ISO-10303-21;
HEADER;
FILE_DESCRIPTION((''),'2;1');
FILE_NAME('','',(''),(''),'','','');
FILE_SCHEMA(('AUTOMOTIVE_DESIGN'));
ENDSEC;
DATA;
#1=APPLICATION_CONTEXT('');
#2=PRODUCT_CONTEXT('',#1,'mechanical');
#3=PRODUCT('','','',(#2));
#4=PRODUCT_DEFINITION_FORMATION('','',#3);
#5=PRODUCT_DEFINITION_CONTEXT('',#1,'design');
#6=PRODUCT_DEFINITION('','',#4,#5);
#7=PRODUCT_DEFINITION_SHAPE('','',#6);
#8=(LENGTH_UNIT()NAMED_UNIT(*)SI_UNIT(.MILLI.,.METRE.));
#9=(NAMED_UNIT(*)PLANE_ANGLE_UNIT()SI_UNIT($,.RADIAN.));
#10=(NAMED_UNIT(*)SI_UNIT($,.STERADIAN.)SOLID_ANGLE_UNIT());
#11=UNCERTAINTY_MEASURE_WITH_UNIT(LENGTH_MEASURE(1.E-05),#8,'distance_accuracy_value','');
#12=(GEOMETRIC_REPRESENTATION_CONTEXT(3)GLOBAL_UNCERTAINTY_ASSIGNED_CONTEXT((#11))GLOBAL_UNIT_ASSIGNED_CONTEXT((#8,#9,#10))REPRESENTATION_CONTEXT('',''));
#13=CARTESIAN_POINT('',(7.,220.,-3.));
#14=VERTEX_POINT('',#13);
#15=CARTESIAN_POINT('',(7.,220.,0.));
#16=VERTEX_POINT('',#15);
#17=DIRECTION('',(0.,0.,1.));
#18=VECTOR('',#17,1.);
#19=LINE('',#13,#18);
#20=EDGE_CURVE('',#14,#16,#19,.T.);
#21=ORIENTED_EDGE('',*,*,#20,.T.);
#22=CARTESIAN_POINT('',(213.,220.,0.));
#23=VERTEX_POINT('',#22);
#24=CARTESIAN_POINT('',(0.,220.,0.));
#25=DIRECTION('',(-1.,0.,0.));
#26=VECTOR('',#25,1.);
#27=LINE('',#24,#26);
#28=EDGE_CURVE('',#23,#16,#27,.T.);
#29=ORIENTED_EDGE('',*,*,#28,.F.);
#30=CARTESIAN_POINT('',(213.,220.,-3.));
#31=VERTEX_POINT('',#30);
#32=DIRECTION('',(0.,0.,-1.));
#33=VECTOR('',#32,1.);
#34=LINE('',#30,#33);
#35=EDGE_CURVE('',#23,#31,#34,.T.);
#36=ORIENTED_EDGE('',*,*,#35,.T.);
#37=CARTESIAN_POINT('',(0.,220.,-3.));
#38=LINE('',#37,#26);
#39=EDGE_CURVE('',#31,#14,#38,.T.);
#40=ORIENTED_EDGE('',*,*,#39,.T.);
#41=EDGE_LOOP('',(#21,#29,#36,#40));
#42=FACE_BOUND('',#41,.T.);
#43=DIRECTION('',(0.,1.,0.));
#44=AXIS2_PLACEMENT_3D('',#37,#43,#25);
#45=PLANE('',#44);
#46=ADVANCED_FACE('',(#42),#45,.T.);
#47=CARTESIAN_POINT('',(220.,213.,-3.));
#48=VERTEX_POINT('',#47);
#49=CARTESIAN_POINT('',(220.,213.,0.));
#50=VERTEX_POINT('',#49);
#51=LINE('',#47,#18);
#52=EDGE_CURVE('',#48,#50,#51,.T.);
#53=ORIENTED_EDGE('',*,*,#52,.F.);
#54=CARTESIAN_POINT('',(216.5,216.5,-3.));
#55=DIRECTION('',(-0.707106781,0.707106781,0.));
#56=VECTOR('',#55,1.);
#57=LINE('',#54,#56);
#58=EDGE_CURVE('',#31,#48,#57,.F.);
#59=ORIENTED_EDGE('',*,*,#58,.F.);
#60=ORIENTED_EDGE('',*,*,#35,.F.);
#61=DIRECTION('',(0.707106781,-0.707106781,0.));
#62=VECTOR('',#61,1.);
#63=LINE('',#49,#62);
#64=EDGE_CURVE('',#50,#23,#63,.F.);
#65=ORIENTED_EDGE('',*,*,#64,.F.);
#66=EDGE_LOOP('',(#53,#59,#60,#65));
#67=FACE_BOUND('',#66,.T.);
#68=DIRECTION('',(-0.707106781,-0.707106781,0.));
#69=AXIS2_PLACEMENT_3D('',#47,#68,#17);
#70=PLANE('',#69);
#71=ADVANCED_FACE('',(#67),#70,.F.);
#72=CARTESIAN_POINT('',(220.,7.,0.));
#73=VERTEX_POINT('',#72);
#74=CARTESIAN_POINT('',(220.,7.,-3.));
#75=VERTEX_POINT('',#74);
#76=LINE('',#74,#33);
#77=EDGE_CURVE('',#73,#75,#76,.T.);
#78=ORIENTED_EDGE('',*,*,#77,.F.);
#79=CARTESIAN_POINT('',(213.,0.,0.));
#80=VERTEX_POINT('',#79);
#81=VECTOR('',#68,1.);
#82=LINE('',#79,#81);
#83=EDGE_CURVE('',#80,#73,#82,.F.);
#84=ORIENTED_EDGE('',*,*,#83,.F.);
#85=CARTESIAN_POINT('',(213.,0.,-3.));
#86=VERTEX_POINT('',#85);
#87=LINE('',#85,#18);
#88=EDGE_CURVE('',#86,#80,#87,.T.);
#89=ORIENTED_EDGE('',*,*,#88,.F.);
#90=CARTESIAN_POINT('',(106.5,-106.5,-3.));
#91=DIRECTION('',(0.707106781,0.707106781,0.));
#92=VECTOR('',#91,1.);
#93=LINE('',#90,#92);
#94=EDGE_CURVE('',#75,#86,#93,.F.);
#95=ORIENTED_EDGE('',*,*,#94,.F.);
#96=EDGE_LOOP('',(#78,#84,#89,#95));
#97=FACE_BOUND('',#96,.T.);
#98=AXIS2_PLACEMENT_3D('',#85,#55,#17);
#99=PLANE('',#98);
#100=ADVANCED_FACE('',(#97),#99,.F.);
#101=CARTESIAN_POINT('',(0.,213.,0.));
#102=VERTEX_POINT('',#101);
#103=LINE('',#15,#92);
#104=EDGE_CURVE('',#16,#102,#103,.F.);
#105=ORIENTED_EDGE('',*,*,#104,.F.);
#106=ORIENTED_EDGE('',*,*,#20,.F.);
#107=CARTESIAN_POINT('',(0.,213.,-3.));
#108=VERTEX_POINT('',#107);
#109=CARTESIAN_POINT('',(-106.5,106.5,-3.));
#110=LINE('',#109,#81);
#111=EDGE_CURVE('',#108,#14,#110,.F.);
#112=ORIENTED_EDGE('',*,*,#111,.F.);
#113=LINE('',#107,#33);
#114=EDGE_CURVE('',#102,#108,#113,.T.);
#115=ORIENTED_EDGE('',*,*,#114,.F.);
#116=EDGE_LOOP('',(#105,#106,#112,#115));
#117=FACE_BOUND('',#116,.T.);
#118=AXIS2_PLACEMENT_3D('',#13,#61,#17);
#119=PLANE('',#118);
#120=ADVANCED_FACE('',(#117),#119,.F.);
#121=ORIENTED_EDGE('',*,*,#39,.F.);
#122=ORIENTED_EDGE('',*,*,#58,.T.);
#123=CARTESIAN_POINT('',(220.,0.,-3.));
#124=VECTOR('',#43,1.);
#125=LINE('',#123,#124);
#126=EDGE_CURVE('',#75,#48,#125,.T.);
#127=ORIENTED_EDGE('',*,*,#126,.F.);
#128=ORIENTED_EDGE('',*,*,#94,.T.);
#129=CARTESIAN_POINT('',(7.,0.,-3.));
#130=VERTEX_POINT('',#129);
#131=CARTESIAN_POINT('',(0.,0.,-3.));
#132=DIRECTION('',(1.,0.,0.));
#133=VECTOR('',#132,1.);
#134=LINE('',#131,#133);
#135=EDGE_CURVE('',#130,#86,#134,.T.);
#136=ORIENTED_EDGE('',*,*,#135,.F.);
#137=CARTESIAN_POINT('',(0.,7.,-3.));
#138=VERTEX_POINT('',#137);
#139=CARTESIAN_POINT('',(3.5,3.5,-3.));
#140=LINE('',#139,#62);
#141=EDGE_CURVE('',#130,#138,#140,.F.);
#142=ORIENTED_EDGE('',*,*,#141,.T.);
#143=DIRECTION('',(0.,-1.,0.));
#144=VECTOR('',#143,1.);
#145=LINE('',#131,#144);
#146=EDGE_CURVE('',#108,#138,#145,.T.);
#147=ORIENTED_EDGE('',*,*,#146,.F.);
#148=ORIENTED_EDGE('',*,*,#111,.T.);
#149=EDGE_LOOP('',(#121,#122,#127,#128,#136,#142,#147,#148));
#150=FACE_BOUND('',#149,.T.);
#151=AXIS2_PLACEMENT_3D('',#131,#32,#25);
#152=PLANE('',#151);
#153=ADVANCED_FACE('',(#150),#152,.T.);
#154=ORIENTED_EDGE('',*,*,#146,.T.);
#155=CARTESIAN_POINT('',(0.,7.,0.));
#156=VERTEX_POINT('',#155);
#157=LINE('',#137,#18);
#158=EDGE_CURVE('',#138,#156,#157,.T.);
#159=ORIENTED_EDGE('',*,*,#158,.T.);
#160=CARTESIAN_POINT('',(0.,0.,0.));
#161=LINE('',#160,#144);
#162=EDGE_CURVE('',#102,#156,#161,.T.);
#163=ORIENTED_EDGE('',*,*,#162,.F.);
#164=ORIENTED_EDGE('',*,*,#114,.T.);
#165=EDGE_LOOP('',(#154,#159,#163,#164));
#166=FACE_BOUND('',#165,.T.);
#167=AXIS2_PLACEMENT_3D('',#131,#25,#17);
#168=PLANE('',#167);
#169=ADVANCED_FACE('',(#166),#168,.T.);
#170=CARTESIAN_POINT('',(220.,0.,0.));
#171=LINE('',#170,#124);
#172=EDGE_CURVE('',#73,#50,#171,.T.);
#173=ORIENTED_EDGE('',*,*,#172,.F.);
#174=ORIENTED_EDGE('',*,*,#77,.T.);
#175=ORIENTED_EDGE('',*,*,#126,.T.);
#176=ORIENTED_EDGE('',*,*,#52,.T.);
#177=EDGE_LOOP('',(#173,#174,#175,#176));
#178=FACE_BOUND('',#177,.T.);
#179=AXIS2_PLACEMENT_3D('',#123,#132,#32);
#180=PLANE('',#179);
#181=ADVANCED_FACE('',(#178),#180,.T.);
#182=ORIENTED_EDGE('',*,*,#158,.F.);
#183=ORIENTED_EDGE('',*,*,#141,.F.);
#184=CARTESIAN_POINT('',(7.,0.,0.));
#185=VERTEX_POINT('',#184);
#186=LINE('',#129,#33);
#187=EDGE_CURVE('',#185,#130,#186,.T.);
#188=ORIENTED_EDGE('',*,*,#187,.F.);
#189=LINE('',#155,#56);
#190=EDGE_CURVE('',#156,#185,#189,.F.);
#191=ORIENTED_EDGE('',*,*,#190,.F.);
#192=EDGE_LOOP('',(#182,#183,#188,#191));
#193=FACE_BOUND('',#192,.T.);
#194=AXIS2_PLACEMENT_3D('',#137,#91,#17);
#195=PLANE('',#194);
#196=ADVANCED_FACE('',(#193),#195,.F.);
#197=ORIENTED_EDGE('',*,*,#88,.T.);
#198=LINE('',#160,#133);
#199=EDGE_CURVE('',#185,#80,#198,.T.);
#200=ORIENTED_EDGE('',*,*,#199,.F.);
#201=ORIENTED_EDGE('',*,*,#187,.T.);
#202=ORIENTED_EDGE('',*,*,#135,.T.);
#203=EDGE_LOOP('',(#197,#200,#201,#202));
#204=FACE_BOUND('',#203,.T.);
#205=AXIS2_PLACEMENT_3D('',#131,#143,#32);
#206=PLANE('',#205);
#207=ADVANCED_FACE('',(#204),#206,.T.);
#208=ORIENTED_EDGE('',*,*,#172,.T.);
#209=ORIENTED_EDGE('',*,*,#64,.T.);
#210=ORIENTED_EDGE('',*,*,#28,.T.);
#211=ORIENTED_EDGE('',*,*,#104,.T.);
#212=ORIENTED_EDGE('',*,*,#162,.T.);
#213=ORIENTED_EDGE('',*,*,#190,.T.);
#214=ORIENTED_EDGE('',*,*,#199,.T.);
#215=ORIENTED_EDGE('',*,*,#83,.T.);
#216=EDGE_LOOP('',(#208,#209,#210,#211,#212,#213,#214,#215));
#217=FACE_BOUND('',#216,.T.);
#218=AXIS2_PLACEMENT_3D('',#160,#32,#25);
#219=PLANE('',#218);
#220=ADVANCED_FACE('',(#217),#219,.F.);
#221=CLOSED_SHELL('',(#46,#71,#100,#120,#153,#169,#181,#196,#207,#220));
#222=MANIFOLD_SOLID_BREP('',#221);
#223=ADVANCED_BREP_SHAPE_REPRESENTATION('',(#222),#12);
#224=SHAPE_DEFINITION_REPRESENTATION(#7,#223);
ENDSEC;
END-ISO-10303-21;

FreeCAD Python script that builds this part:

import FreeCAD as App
import Part
import Sketcher
Q = App.Units.Quantity


def edges_at(feature, points):
    """Names of the edges that pass closest to the given points."""
    edges = feature.Shape.Edges
    near = lambda p: min(range(len(edges)), key=lambda i: edges[i].distToShape(Part.Vertex(*p))[0])
    return sorted({f"Edge{near(p) + 1}" for p in points})


def add_polygon(sketch, points):
    """Adds a closed chain of lines whose ends are joined by coincident constraints."""
    first, n = sketch.GeometryCount, len(points)
    for a, b in zip(points, points[1:] + points[:1]):
        sketch.addGeometry(Part.LineSegment(App.Vector(*a, 0), App.Vector(*b, 0)), False)
    for i in range(n):
        sketch.addConstraint(Sketcher.Constraint("Coincident", first + i, 2, first + (i + 1) % n, 1))

doc = App.newDocument("Part")
body = doc.addObject("PartDesign::Body", "Body")

# Sketch on XY plane
sketch1 = body.newObject("Sketcher::SketchObject", "Sketch")
sketch1.AttachmentSupport = (doc.getObject("XY_Plane"), [""])
sketch1.MapMode = "FlatFace"
add_polygon(sketch1, [(0, 220), (0, 0), (220, 0), (220, 220)])  # lines 0-3
sketch1.addConstraint([
    Sketcher.Constraint("Vertical", 0),
    Sketcher.Constraint("Horizontal", 1),
    Sketcher.Constraint("Vertical", 2),
    Sketcher.Constraint("Horizontal", 3),
    Sketcher.Constraint("Coincident", 0, 2, -1, 1),
    Sketcher.Constraint("Equal", 3, 0),
    Sketcher.Constraint("DistanceX", 1, 1, 1, 2, Q("220 mm")),
])
pad1 = body.newObject("PartDesign::Pad", "Pad")
pad1.Profile = sketch1
pad1.Length = 3
pad1.Reversed = True
doc.recompute()

chamfer = body.newObject("PartDesign::Chamfer", "Chamfer")
chamfer.Base = (pad1, edges_at(pad1, [
    (0, 220, -1.5),
    (220, 220, -1.5),
    (220, 0, -1.5),
    (0, 0, -1.5),
]))
chamfer.Size = 7

doc.recompute()
